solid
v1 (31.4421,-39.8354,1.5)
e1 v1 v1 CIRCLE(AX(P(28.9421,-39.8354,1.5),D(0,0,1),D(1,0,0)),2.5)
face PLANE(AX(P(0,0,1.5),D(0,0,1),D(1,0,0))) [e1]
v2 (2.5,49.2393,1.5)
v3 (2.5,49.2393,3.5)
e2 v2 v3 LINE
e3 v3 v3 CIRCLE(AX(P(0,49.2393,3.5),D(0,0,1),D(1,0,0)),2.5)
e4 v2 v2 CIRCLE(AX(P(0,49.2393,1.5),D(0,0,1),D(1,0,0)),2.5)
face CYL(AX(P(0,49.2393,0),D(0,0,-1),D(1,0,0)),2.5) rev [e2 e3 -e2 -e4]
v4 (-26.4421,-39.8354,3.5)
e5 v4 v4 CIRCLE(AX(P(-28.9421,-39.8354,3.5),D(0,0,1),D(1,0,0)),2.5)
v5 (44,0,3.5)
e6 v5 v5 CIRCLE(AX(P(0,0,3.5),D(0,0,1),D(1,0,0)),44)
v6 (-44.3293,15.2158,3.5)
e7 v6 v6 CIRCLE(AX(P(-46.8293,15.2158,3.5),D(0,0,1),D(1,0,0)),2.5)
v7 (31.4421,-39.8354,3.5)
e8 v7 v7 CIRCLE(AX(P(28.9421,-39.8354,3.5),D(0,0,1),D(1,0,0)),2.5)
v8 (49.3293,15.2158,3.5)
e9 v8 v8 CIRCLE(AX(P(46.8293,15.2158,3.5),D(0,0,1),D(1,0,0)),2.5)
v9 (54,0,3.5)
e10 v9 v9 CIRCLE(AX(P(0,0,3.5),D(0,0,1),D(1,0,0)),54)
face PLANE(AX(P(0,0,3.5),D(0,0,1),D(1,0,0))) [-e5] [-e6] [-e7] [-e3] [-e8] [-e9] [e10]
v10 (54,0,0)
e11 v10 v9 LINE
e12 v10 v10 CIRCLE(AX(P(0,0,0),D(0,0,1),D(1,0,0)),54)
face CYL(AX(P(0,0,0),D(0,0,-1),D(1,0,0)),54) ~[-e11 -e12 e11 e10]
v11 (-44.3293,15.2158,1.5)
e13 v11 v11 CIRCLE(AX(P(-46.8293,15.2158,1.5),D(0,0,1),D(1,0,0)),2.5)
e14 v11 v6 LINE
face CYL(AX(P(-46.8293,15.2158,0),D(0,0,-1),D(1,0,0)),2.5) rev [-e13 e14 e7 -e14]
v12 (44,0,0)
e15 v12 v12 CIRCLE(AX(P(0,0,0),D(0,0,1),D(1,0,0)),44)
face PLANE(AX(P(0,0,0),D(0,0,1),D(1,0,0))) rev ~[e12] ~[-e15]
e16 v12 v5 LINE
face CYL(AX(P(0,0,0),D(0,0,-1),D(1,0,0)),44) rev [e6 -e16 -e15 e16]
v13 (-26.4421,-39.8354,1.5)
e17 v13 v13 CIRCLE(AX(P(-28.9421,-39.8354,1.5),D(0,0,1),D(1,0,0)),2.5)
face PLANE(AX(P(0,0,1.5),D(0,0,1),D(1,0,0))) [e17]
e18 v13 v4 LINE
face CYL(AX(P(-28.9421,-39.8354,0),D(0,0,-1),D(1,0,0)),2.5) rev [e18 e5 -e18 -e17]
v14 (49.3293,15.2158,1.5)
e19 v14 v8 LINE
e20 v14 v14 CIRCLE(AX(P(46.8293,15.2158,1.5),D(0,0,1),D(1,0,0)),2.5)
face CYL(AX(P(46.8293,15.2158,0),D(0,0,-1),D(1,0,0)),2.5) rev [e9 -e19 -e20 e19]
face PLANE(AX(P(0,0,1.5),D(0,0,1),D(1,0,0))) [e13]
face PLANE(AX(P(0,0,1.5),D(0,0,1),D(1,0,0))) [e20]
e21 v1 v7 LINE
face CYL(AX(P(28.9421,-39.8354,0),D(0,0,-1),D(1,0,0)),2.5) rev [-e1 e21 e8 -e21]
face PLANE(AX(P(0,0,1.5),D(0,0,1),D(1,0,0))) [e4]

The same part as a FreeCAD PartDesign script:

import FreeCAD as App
import Part
import Sketcher

V = App.Vector
Q = App.Units.Quantity

doc = App.newDocument("Part")
body = doc.addObject("PartDesign::Body", "Body")
body.AllowCompound = True

# Sketch on XY plane
sketch1 = doc.addObject("Sketcher::SketchObject", "Sketch")
body.addObject(sketch1)
sketch1.AttachmentSupport = (doc.XY_Plane, [""])
sketch1.MapMode = "FlatFace"
sketch1.addGeometry(Part.Circle(V(0, 49.2, 0), V(0, 0, 1), 2.5), False)
sketch1.addGeometry(Part.Circle(V(-46.8, 15.2, 0), V(0, 0, 1), 2.5), False)
sketch1.addGeometry(Part.Circle(V(-28.9, -39.8, 0), V(0, 0, 1), 2.5), False)
sketch1.addGeometry(Part.Circle(V(28.9, -39.8, 0), V(0, 0, 1), 2.5), False)
sketch1.addGeometry(Part.Circle(V(46.8, 15.2, 0), V(0, 0, 1), 2.5), False)
sketch1.addConstraint(Sketcher.Constraint("Equal", 0, 1))
sketch1.addConstraint(Sketcher.Constraint("Equal", 1, 2))
sketch1.addConstraint(Sketcher.Constraint("Equal", 2, 3))
sketch1.addConstraint(Sketcher.Constraint("Equal", 3, 4))
sketch1.addConstraint(Sketcher.Constraint("Symmetric", 2, 3, 3, 3, -2))
sketch1.addConstraint(Sketcher.Constraint("Symmetric", 1, 3, 4, 3, -2))
sketch1.addConstraint(Sketcher.Constraint("PointOnObject", 0, 3, -2))
sketch1.addConstraint(Sketcher.Constraint("Diameter", 0, Q("5 mm")))
sketch1.addConstraint(Sketcher.Constraint("DistanceY", -1, 1, 0, 3, Q("49.2393 mm")))
sketch1.addConstraint(Sketcher.Constraint("DistanceX", 2, 3, -1, 1, Q("28.942 mm")))
sketch1.addConstraint(Sketcher.Constraint("DistanceX", 1, 3, -1, 1, Q("46.8293 mm")))
sketch1.addConstraint(Sketcher.Constraint("DistanceY", -1, 1, 1, 3, Q("15.2158 mm")))
sketch1.addConstraint(Sketcher.Constraint("DistanceY", 2, 3, -1, 1, Q("39.8354 mm")))
pad1 = doc.addObject("PartDesign::Pad", "Pad")
body.addObject(pad1)
pad1.Profile = sketch1
pad1.Length = 1.5

# Sketch on XY plane
sketch2 = doc.addObject("Sketcher::SketchObject", "Sketch001")
body.addObject(sketch2)
sketch2.AttachmentSupport = (doc.XY_Plane, [""])
sketch2.MapMode = "FlatFace"
sketch2.addGeometry(Part.Circle(V(0, 0, 0), V(0, 0, 1), 54), False)
sketch2.addGeometry(Part.Circle(V(-28.9, -39.8, 0), V(0, 0, 1), 2.5), False)
sketch2.addGeometry(Part.Circle(V(28.9, -39.8, 0), V(0, 0, 1), 2.5), False)
sketch2.addGeometry(Part.Circle(V(-46.8, 15.2, 0), V(0, 0, 1), 2.5), False)
sketch2.addGeometry(Part.Circle(V(0, 0, 0), V(0, 0, 1), 44), False)
sketch2.addGeometry(Part.Circle(V(46.8, 15.2, 0), V(0, 0, 1), 2.5), False)
sketch2.addGeometry(Part.Circle(V(0, 49.2, 0), V(0, 0, 1), 2.5), False)
sketch2.addConstraint(Sketcher.Constraint("Coincident", 0, 3, -1, 1))
sketch2.addConstraint(Sketcher.Constraint("Coincident", 4, 3, -1, 1))
sketch2.addConstraint(Sketcher.Constraint("Equal", 1, 2))
sketch2.addConstraint(Sketcher.Constraint("Equal", 2, 3))
sketch2.addConstraint(Sketcher.Constraint("Equal", 3, 5))
sketch2.addConstraint(Sketcher.Constraint("Equal", 5, 6))
sketch2.addConstraint(Sketcher.Constraint("Symmetric", 1, 3, 2, 3, -2))
sketch2.addConstraint(Sketcher.Constraint("Symmetric", 3, 3, 5, 3, -2))
sketch2.addConstraint(Sketcher.Constraint("PointOnObject", 6, 3, -2))
sketch2.addConstraint(Sketcher.Constraint("Diameter", 0, Q("108 mm")))
sketch2.addConstraint(Sketcher.Constraint("Diameter", 1, Q("5 mm")))
sketch2.addConstraint(Sketcher.Constraint("Diameter", 4, Q("88 mm")))
sketch2.addConstraint(Sketcher.Constraint("DistanceY", -1, 1, 6, 3, Q("49.2393 mm")))
sketch2.addConstraint(Sketcher.Constraint("DistanceX", 1, 3, -1, 1, Q("28.942 mm")))
sketch2.addConstraint(Sketcher.Constraint("DistanceY", 1, 3, -1, 1, Q("39.8354 mm")))
sketch2.addConstraint(Sketcher.Constraint("DistanceX", 3, 3, -1, 1, Q("46.8293 mm")))
sketch2.addConstraint(Sketcher.Constraint("DistanceY", -1, 1, 3, 3, Q("15.2158 mm")))
pad2 = doc.addObject("PartDesign::Pad", "Pad001")
body.addObject(pad2)
pad2.Profile = sketch2
pad2.Length = 3.5

doc.recompute()
